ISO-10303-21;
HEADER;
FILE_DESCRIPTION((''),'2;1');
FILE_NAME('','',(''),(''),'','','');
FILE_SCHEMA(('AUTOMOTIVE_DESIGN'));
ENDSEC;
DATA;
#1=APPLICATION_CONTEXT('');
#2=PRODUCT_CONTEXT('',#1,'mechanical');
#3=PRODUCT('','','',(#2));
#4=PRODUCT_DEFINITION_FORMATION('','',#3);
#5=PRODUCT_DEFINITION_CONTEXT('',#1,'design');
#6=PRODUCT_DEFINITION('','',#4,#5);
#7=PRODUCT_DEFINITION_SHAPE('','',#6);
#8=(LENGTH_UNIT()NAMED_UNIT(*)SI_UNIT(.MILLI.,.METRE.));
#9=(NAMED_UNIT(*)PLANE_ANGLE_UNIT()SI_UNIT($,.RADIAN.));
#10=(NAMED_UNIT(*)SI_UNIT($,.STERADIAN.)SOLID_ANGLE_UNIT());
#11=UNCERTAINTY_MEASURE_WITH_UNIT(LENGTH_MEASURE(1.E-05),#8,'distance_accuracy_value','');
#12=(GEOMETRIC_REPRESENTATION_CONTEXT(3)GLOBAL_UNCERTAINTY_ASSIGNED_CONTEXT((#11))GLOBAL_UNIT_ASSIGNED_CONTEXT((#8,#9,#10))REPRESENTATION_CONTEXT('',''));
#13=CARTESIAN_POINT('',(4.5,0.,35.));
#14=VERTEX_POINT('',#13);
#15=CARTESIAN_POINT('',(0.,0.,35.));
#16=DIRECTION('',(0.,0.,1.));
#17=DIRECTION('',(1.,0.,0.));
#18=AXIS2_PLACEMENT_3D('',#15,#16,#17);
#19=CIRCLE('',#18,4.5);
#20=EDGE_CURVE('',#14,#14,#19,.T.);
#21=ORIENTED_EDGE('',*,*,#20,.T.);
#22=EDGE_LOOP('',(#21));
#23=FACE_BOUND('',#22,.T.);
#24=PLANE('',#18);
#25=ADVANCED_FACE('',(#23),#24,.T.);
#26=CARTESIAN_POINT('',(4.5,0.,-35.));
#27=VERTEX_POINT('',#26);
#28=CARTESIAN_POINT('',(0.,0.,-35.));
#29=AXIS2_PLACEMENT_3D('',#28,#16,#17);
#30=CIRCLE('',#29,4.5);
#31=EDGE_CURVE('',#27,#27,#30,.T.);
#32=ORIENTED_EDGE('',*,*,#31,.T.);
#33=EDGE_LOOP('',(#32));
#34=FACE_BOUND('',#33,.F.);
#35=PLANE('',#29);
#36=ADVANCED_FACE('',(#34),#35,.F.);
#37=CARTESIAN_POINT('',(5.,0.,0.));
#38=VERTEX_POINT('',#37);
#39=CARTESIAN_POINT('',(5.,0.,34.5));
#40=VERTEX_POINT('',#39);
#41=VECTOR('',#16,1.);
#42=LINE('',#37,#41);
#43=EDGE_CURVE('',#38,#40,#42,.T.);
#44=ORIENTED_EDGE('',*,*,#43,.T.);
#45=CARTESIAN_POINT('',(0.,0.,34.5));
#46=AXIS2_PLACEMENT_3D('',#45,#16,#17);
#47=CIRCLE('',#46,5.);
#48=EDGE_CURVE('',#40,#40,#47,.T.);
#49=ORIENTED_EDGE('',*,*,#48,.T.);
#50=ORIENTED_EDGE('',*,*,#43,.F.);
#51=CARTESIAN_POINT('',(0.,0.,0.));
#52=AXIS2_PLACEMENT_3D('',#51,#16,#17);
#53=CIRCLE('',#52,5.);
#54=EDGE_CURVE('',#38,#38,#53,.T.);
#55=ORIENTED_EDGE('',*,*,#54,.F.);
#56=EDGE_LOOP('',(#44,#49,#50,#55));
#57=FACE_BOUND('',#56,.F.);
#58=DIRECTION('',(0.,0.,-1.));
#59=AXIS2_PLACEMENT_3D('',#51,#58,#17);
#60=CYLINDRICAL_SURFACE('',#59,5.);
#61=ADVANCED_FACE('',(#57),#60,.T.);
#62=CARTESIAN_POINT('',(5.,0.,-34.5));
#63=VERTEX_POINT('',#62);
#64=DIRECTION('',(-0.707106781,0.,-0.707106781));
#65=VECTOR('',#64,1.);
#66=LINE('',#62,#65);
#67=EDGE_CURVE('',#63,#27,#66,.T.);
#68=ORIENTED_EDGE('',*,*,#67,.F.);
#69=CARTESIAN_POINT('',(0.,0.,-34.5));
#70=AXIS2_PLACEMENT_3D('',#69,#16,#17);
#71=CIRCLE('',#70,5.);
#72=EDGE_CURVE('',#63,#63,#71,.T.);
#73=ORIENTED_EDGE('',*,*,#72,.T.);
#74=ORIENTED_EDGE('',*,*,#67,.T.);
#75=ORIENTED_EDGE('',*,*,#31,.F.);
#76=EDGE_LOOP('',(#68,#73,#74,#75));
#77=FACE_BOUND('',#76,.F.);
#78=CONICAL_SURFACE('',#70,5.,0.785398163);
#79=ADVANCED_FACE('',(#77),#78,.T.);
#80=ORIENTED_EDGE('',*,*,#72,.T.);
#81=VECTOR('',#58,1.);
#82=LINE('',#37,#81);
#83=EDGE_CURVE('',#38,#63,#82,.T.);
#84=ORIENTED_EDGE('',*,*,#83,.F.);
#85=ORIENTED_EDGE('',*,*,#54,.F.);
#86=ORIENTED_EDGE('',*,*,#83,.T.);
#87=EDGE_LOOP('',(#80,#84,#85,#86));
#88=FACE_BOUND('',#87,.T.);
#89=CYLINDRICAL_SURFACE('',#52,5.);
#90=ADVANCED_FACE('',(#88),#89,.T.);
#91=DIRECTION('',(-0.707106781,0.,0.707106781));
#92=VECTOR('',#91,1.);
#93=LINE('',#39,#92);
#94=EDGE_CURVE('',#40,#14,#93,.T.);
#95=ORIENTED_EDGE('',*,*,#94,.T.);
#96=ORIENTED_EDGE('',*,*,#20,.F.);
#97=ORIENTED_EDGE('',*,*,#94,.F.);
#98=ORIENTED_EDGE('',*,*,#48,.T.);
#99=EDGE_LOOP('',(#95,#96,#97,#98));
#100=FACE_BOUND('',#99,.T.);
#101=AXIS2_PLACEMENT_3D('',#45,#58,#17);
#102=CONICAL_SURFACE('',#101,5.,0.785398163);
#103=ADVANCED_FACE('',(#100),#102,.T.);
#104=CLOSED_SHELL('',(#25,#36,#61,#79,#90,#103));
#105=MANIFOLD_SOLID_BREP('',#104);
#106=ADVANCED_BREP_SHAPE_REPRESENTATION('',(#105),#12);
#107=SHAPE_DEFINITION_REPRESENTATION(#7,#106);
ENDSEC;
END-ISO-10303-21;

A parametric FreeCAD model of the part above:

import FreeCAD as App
import Part
import Sketcher
from FreeCAD import Vector


def edges_at(feature, points):
    """Names of the edges that pass closest to the given points."""
    edges = feature.Shape.Edges
    near = lambda p: min(range(len(edges)), key=lambda i: edges[i].distToShape(Part.Vertex(*p))[0])
    return sorted({f"Edge{near(p) + 1}" for p in points})

doc = App.newDocument("Part")
body = doc.addObject("PartDesign::Body", "Body")

# Sketch on XY plane
sketch1 = doc.addObject("Sketcher::SketchObject", "Sketch")
body.addObject(sketch1)
sketch1.AttachmentSupport = (doc.XY_Plane, [""])
sketch1.MapMode = "FlatFace"
sketch1.addGeometry(Part.Circle(Vector(0, 0, 0), Vector(0, 0, 1), 5), False)
sketch1.addConstraint(Sketcher.Constraint("Coincident", 0, 3, -1, 1))
sketch1.addConstraint(Sketcher.Constraint("Diameter", 0, 10.0))
pad1 = doc.addObject("PartDesign::Pad", "Pad")
body.addObject(pad1)
pad1.Profile = sketch1
pad1.Length = 70
pad1.Midplane = True
doc.recompute()

chamfer = doc.addObject("PartDesign::Chamfer", "Chamfer")
body.addObject(chamfer)
chamfer.Base = (pad1, edges_at(pad1, [(-5, 0, 35), (-5, 0, -35)]))
chamfer.Size = 0.5

doc.recompute()
